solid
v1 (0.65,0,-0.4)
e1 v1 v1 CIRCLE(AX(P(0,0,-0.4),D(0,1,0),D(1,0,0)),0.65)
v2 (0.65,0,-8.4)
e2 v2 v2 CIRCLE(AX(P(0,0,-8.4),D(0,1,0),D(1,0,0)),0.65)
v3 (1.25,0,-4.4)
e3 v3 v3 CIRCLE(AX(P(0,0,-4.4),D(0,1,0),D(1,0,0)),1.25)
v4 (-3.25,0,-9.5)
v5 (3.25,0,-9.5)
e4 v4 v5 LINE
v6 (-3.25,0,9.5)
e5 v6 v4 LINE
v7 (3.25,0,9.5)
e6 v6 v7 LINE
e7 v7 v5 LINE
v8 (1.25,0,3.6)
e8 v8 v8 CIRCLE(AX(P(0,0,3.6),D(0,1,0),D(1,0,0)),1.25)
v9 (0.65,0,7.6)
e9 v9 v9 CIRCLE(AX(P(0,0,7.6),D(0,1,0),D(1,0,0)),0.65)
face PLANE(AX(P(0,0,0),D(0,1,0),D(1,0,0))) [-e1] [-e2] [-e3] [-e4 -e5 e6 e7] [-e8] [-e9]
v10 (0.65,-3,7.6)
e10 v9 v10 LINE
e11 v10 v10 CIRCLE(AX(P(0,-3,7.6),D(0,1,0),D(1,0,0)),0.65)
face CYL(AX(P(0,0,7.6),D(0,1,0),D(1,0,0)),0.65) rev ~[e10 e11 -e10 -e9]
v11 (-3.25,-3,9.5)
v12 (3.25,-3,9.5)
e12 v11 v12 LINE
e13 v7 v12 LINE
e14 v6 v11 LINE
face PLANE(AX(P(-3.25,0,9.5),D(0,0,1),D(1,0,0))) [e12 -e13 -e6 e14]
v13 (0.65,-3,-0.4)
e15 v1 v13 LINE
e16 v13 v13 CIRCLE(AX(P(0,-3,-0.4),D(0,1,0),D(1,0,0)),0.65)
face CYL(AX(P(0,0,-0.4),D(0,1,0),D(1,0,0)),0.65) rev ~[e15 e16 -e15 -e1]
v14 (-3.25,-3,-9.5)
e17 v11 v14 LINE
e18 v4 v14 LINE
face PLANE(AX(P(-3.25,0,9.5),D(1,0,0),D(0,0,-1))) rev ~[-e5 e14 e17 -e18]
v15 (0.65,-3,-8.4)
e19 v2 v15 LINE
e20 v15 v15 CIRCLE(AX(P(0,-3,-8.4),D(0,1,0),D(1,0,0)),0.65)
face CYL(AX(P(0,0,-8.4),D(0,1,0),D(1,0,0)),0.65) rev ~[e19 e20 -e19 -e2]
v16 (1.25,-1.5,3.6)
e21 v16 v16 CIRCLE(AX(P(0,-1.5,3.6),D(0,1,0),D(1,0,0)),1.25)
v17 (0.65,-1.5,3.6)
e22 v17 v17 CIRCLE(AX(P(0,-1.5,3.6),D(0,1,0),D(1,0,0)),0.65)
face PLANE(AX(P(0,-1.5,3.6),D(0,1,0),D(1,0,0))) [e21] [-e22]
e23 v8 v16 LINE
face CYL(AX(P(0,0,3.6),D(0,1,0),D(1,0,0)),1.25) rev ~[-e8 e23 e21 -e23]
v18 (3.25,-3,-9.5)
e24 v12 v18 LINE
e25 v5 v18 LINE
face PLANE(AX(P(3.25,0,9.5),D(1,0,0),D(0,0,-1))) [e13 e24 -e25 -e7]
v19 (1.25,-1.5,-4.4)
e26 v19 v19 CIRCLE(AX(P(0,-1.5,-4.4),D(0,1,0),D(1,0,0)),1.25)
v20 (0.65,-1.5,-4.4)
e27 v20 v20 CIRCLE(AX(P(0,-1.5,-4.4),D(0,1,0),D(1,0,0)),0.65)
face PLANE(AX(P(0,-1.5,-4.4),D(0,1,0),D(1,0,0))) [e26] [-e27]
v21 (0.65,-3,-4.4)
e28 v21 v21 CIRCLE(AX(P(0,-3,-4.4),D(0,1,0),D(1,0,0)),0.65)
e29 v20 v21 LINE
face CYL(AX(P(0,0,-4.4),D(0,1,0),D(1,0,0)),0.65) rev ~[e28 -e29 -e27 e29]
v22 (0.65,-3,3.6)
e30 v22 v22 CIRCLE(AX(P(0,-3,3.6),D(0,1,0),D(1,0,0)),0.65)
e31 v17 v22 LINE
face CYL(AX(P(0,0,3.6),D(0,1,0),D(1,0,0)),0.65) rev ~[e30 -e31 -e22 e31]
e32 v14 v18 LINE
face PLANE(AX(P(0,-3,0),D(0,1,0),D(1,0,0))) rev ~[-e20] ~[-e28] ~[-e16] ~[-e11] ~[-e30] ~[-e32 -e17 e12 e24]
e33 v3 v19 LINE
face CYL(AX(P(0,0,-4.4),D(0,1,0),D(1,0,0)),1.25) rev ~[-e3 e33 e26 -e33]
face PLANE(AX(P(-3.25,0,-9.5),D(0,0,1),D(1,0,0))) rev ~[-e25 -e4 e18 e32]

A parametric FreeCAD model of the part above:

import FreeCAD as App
import Part
import Sketcher
from FreeCAD import Vector
Q = App.Units.Quantity


def add_polygon(sketch, points):
    """Adds a closed chain of lines whose ends are joined by coincident constraints."""
    first, n = sketch.GeometryCount, len(points)
    for a, b in zip(points, points[1:] + points[:1]):
        sketch.addGeometry(Part.LineSegment(App.Vector(*a, 0), App.Vector(*b, 0)), False)
    for i in range(n):
        sketch.addConstraint(Sketcher.Constraint("Coincident", first + i, 2, first + (i + 1) % n, 1))

doc = App.newDocument("Part")
params = doc.addObject("Spreadsheet::Sheet", "Params")
for row, (alias, value) in enumerate([
    ("sketch1_height", "19 mm"),
    ("sketch1_width", "6.5 mm"),
    ("pad1_length", "3 mm"),
    ("sketch2_diameter", "1.3 mm"),
    ("sketch3_diameter", "2.5 mm"),
    ("pocket2_length", "1.5 mm"),
], start=1):
    params.set(f"A{row}", alias)
    params.set(f"B{row}", "=" + value)
    params.setAlias(f"B{row}", alias)

body = doc.addObject("PartDesign::Body", "Body")

# Sketch on XZ plane
sketch1 = doc.addObject("Sketcher::SketchObject", "Sketch")
body.addObject(sketch1)
sketch1.AttachmentSupport = (doc.XZ_Plane, [""])
sketch1.MapMode = "FlatFace"
add_polygon(sketch1, [(-3, -10), (-3, 10), (3, 10), (3, -10)])  # lines 0-3
sketch1.addConstraint([
    Sketcher.Constraint("Vertical", 0),
    Sketcher.Constraint("Horizontal", 1),
    Sketcher.Constraint("Vertical", 2),
    Sketcher.Constraint("Horizontal", 3),
    Sketcher.Constraint("Symmetric", 0, 2, 2, 2, -1, 1),
    Sketcher.Constraint("DistanceY", 0, 1, 0, 2, Q("19 mm")),
    Sketcher.Constraint("DistanceX", 1, 1, 1, 2, Q("6.5 mm")),
])
sketch1.setExpression("Constraints[9]", "Params.sketch1_height")
sketch1.setExpression("Constraints[10]", "Params.sketch1_width")
pad1 = doc.addObject("PartDesign::Pad", "Pad")
body.addObject(pad1)
pad1.Profile = sketch1
pad1.setExpression("Length", "Params.pad1_length")

# Sketch on XZ plane
sketch2 = doc.addObject("Sketcher::SketchObject", "Sketch001")
body.addObject(sketch2)
sketch2.AttachmentSupport = (doc.XZ_Plane, [""])
sketch2.MapMode = "FlatFace"
sketch2.addGeometry([
    Part.Circle(Vector(0, 7.6, 0), Vector(0, 0, 1), 0.7),  # 0
    Part.Circle(Vector(0, -0.4, 0), Vector(0, 0, 1), 0.7),  # 1
    Part.Circle(Vector(0, -8.4, 0), Vector(0, 0, 1), 0.7),  # 2
    Part.Circle(Vector(0, -4.4, 0), Vector(0, 0, 1), 0.7),  # 3
    Part.Circle(Vector(0, 3.6, 0), Vector(0, 0, 1), 0.7),  # 4
], False)
sketch2.addConstraint([
    Sketcher.Constraint("Equal", 0, 1),
    Sketcher.Constraint("Equal", 1, 2),
    Sketcher.Constraint("Equal", 2, 3),
    Sketcher.Constraint("Equal", 3, 4),
    Sketcher.Constraint("PointOnObject", 0, 3, -2),
    Sketcher.Constraint("PointOnObject", 1, 3, -2),
    Sketcher.Constraint("PointOnObject", 2, 3, -2),
    Sketcher.Constraint("PointOnObject", 3, 3, -2),
    Sketcher.Constraint("PointOnObject", 4, 3, -2),
    Sketcher.Constraint("Diameter", 0, Q("1.3 mm")),
    Sketcher.Constraint("DistanceY", 1, 3, 0, 3, Q("8 mm")),
    Sketcher.Constraint("DistanceY", 2, 3, 1, 3, Q("8 mm")),
    Sketcher.Constraint("DistanceY", 3, 3, 1, 3, Q("4 mm")),
    Sketcher.Constraint("DistanceY", 4, 3, 0, 3, Q("4 mm")),
    Sketcher.Constraint("DistanceY", -1, 1, 0, 3, Q("7.6 mm")),
])
sketch2.setExpression("Constraints[9]", "Params.sketch2_diameter")
pocket1 = doc.addObject("PartDesign::Pocket", "Pocket")
body.addObject(pocket1)
pocket1.Profile = sketch2
pocket1.Type = "ThroughAll"
pocket1.Reversed = True

# Sketch on XZ plane
sketch3 = doc.addObject("Sketcher::SketchObject", "Sketch002")
body.addObject(sketch3)
sketch3.AttachmentSupport = (doc.XZ_Plane, [""])
sketch3.MapMode = "FlatFace"
sketch3.addGeometry([
    Part.Circle(Vector(0, -4.4, 0), Vector(0, 0, 1), 1.2),
    Part.Circle(Vector(0, 3.6, 0), Vector(0, 0, 1), 1.2),
], False)
sketch3.addConstraint([
    Sketcher.Constraint("Equal", 0, 1),
    Sketcher.Constraint("PointOnObject", 0, 3, -2),
    Sketcher.Constraint("PointOnObject", 1, 3, -2),
    Sketcher.Constraint("Diameter", 0, Q("2.5 mm")),
    Sketcher.Constraint("DistanceY", 0, 3, 1, 3, Q("8 mm")),
    Sketcher.Constraint("DistanceY", 0, 3, -1, 1, Q("4.4 mm")),
])
sketch3.setExpression("Constraints[3]", "Params.sketch3_diameter")
pocket2 = doc.addObject("PartDesign::Pocket", "Pocket001")
body.addObject(pocket2)
pocket2.Profile = sketch3
pocket2.setExpression("Length", "Params.pocket2_length")
pocket2.Reversed = True

doc.recompute()
